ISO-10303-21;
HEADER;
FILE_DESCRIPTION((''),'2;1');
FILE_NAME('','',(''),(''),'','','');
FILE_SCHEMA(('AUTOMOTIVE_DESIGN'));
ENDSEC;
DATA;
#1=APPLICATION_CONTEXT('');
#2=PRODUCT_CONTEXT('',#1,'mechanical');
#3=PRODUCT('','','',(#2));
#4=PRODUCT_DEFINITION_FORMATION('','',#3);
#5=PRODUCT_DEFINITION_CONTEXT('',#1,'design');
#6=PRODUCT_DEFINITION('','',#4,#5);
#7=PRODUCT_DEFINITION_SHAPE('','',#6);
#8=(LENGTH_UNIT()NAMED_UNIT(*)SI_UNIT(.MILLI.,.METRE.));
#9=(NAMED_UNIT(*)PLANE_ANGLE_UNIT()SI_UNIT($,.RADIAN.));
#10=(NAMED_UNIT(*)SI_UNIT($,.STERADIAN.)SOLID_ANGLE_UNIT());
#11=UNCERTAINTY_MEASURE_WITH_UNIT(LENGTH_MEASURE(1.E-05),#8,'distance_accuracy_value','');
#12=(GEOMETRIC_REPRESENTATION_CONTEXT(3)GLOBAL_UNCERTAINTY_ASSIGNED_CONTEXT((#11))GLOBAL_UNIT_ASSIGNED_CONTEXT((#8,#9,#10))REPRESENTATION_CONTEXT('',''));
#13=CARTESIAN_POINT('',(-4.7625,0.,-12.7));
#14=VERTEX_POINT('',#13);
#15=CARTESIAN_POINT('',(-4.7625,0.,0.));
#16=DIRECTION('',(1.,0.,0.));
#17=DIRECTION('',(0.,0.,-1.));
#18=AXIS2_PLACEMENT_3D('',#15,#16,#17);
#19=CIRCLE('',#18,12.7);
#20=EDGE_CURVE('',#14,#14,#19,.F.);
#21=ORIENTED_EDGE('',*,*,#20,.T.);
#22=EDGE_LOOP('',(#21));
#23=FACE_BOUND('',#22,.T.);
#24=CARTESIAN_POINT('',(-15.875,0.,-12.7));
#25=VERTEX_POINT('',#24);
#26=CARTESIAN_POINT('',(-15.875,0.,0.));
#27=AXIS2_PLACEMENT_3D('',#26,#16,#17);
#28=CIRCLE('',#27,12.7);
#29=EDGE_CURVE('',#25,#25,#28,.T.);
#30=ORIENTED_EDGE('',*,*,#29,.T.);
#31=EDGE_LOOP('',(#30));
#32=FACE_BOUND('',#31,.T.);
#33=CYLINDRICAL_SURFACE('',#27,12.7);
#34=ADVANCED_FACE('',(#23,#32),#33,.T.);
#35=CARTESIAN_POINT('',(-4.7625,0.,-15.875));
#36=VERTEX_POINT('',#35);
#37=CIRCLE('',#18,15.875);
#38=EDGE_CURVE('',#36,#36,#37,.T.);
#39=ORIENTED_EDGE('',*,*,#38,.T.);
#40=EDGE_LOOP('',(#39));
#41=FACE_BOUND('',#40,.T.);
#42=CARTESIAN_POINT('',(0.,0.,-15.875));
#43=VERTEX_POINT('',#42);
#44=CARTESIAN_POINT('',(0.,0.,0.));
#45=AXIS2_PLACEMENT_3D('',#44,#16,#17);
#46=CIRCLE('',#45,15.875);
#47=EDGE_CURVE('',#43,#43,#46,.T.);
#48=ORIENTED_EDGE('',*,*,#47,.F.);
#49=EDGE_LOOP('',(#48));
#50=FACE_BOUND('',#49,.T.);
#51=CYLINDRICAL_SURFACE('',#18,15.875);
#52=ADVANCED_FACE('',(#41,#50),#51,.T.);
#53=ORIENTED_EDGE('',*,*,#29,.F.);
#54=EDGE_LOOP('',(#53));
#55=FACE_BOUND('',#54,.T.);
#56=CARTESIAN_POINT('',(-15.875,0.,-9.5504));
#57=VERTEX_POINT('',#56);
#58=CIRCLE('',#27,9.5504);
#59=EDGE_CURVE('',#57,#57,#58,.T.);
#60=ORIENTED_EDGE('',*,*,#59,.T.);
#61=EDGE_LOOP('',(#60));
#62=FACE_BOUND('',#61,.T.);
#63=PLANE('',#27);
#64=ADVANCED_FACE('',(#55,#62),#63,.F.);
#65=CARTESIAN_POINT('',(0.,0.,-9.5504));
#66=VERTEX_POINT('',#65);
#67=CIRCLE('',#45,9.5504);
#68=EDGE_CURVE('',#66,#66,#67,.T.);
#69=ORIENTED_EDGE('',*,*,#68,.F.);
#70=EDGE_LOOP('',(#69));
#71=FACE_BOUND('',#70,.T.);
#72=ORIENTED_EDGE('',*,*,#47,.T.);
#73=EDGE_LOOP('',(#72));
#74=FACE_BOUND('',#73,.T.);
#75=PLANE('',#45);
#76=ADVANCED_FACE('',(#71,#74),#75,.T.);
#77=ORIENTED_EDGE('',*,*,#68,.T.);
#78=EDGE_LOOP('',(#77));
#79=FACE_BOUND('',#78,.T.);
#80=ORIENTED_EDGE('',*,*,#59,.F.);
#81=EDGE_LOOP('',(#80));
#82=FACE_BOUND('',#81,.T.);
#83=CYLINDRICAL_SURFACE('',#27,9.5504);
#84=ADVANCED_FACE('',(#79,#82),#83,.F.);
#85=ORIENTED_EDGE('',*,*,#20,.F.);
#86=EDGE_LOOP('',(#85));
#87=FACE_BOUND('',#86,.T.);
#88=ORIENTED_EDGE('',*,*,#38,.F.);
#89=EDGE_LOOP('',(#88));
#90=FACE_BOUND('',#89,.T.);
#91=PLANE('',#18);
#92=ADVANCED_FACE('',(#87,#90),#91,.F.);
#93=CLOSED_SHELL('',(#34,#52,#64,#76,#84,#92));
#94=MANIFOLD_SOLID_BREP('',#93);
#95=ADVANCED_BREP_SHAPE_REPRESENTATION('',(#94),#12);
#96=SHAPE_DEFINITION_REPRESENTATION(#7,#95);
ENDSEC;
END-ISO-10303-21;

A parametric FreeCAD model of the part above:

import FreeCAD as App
import Part
import Sketcher

V = App.Vector
Q = App.Units.Quantity

doc = App.newDocument("Part")
body = doc.addObject("PartDesign::Body", "Body")

sketch1 = doc.addObject("Sketcher::SketchObject", "Sketch")
body.addObject(sketch1)
sketch1.AttachmentSupport = (doc.YZ_Plane, [""])
sketch1.MapMode = "FlatFace"
sketch1.addGeometry([
    Part.Circle(V(0, 0, 0), V(0, 0, 1), 12.7),
    Part.Circle(V(0, 0, 0), V(0, 0, 1), 9.5504),
], False)
sketch1.addConstraint([
    Sketcher.Constraint("Coincident", 0, 3, -1, 1),
    Sketcher.Constraint("Coincident", 1, 3, -1, 1),
    Sketcher.Constraint("Diameter", 0, Q("1 in")),
    Sketcher.Constraint("Diameter", 1, Q("0.752 in")),
])
pad1 = doc.addObject("PartDesign::Pad", "Pad")
body.addObject(pad1)
pad1.Profile = sketch1
pad1.Length = Q("0.625 in")
pad1.Reversed = True

sketch2 = doc.addObject("Sketcher::SketchObject", "Sketch001")
body.addObject(sketch2)
sketch2.AttachmentSupport = (doc.YZ_Plane, [""])
sketch2.MapMode = "FlatFace"
sketch2.addGeometry([
    Part.Circle(V(0, 0, 0), V(0, 0, 1), 15.875),
    Part.Circle(V(0, 0, 0), V(0, 0, 1), 9.5504),
], False)
sketch2.addConstraint([
    Sketcher.Constraint("Coincident", 0, 3, -1, 1),
    Sketcher.Constraint("Coincident", 1, 3, -1, 1),
    Sketcher.Constraint("Diameter", 0, Q("1.25 in")),
    Sketcher.Constraint("Diameter", 1, Q("0.752 in")),
])
pad2 = doc.addObject("PartDesign::Pad", "Pad001")
body.addObject(pad2)
pad2.Profile = sketch2
pad2.Length = Q("0.1875 in")
pad2.Reversed = True

doc.recompute()
